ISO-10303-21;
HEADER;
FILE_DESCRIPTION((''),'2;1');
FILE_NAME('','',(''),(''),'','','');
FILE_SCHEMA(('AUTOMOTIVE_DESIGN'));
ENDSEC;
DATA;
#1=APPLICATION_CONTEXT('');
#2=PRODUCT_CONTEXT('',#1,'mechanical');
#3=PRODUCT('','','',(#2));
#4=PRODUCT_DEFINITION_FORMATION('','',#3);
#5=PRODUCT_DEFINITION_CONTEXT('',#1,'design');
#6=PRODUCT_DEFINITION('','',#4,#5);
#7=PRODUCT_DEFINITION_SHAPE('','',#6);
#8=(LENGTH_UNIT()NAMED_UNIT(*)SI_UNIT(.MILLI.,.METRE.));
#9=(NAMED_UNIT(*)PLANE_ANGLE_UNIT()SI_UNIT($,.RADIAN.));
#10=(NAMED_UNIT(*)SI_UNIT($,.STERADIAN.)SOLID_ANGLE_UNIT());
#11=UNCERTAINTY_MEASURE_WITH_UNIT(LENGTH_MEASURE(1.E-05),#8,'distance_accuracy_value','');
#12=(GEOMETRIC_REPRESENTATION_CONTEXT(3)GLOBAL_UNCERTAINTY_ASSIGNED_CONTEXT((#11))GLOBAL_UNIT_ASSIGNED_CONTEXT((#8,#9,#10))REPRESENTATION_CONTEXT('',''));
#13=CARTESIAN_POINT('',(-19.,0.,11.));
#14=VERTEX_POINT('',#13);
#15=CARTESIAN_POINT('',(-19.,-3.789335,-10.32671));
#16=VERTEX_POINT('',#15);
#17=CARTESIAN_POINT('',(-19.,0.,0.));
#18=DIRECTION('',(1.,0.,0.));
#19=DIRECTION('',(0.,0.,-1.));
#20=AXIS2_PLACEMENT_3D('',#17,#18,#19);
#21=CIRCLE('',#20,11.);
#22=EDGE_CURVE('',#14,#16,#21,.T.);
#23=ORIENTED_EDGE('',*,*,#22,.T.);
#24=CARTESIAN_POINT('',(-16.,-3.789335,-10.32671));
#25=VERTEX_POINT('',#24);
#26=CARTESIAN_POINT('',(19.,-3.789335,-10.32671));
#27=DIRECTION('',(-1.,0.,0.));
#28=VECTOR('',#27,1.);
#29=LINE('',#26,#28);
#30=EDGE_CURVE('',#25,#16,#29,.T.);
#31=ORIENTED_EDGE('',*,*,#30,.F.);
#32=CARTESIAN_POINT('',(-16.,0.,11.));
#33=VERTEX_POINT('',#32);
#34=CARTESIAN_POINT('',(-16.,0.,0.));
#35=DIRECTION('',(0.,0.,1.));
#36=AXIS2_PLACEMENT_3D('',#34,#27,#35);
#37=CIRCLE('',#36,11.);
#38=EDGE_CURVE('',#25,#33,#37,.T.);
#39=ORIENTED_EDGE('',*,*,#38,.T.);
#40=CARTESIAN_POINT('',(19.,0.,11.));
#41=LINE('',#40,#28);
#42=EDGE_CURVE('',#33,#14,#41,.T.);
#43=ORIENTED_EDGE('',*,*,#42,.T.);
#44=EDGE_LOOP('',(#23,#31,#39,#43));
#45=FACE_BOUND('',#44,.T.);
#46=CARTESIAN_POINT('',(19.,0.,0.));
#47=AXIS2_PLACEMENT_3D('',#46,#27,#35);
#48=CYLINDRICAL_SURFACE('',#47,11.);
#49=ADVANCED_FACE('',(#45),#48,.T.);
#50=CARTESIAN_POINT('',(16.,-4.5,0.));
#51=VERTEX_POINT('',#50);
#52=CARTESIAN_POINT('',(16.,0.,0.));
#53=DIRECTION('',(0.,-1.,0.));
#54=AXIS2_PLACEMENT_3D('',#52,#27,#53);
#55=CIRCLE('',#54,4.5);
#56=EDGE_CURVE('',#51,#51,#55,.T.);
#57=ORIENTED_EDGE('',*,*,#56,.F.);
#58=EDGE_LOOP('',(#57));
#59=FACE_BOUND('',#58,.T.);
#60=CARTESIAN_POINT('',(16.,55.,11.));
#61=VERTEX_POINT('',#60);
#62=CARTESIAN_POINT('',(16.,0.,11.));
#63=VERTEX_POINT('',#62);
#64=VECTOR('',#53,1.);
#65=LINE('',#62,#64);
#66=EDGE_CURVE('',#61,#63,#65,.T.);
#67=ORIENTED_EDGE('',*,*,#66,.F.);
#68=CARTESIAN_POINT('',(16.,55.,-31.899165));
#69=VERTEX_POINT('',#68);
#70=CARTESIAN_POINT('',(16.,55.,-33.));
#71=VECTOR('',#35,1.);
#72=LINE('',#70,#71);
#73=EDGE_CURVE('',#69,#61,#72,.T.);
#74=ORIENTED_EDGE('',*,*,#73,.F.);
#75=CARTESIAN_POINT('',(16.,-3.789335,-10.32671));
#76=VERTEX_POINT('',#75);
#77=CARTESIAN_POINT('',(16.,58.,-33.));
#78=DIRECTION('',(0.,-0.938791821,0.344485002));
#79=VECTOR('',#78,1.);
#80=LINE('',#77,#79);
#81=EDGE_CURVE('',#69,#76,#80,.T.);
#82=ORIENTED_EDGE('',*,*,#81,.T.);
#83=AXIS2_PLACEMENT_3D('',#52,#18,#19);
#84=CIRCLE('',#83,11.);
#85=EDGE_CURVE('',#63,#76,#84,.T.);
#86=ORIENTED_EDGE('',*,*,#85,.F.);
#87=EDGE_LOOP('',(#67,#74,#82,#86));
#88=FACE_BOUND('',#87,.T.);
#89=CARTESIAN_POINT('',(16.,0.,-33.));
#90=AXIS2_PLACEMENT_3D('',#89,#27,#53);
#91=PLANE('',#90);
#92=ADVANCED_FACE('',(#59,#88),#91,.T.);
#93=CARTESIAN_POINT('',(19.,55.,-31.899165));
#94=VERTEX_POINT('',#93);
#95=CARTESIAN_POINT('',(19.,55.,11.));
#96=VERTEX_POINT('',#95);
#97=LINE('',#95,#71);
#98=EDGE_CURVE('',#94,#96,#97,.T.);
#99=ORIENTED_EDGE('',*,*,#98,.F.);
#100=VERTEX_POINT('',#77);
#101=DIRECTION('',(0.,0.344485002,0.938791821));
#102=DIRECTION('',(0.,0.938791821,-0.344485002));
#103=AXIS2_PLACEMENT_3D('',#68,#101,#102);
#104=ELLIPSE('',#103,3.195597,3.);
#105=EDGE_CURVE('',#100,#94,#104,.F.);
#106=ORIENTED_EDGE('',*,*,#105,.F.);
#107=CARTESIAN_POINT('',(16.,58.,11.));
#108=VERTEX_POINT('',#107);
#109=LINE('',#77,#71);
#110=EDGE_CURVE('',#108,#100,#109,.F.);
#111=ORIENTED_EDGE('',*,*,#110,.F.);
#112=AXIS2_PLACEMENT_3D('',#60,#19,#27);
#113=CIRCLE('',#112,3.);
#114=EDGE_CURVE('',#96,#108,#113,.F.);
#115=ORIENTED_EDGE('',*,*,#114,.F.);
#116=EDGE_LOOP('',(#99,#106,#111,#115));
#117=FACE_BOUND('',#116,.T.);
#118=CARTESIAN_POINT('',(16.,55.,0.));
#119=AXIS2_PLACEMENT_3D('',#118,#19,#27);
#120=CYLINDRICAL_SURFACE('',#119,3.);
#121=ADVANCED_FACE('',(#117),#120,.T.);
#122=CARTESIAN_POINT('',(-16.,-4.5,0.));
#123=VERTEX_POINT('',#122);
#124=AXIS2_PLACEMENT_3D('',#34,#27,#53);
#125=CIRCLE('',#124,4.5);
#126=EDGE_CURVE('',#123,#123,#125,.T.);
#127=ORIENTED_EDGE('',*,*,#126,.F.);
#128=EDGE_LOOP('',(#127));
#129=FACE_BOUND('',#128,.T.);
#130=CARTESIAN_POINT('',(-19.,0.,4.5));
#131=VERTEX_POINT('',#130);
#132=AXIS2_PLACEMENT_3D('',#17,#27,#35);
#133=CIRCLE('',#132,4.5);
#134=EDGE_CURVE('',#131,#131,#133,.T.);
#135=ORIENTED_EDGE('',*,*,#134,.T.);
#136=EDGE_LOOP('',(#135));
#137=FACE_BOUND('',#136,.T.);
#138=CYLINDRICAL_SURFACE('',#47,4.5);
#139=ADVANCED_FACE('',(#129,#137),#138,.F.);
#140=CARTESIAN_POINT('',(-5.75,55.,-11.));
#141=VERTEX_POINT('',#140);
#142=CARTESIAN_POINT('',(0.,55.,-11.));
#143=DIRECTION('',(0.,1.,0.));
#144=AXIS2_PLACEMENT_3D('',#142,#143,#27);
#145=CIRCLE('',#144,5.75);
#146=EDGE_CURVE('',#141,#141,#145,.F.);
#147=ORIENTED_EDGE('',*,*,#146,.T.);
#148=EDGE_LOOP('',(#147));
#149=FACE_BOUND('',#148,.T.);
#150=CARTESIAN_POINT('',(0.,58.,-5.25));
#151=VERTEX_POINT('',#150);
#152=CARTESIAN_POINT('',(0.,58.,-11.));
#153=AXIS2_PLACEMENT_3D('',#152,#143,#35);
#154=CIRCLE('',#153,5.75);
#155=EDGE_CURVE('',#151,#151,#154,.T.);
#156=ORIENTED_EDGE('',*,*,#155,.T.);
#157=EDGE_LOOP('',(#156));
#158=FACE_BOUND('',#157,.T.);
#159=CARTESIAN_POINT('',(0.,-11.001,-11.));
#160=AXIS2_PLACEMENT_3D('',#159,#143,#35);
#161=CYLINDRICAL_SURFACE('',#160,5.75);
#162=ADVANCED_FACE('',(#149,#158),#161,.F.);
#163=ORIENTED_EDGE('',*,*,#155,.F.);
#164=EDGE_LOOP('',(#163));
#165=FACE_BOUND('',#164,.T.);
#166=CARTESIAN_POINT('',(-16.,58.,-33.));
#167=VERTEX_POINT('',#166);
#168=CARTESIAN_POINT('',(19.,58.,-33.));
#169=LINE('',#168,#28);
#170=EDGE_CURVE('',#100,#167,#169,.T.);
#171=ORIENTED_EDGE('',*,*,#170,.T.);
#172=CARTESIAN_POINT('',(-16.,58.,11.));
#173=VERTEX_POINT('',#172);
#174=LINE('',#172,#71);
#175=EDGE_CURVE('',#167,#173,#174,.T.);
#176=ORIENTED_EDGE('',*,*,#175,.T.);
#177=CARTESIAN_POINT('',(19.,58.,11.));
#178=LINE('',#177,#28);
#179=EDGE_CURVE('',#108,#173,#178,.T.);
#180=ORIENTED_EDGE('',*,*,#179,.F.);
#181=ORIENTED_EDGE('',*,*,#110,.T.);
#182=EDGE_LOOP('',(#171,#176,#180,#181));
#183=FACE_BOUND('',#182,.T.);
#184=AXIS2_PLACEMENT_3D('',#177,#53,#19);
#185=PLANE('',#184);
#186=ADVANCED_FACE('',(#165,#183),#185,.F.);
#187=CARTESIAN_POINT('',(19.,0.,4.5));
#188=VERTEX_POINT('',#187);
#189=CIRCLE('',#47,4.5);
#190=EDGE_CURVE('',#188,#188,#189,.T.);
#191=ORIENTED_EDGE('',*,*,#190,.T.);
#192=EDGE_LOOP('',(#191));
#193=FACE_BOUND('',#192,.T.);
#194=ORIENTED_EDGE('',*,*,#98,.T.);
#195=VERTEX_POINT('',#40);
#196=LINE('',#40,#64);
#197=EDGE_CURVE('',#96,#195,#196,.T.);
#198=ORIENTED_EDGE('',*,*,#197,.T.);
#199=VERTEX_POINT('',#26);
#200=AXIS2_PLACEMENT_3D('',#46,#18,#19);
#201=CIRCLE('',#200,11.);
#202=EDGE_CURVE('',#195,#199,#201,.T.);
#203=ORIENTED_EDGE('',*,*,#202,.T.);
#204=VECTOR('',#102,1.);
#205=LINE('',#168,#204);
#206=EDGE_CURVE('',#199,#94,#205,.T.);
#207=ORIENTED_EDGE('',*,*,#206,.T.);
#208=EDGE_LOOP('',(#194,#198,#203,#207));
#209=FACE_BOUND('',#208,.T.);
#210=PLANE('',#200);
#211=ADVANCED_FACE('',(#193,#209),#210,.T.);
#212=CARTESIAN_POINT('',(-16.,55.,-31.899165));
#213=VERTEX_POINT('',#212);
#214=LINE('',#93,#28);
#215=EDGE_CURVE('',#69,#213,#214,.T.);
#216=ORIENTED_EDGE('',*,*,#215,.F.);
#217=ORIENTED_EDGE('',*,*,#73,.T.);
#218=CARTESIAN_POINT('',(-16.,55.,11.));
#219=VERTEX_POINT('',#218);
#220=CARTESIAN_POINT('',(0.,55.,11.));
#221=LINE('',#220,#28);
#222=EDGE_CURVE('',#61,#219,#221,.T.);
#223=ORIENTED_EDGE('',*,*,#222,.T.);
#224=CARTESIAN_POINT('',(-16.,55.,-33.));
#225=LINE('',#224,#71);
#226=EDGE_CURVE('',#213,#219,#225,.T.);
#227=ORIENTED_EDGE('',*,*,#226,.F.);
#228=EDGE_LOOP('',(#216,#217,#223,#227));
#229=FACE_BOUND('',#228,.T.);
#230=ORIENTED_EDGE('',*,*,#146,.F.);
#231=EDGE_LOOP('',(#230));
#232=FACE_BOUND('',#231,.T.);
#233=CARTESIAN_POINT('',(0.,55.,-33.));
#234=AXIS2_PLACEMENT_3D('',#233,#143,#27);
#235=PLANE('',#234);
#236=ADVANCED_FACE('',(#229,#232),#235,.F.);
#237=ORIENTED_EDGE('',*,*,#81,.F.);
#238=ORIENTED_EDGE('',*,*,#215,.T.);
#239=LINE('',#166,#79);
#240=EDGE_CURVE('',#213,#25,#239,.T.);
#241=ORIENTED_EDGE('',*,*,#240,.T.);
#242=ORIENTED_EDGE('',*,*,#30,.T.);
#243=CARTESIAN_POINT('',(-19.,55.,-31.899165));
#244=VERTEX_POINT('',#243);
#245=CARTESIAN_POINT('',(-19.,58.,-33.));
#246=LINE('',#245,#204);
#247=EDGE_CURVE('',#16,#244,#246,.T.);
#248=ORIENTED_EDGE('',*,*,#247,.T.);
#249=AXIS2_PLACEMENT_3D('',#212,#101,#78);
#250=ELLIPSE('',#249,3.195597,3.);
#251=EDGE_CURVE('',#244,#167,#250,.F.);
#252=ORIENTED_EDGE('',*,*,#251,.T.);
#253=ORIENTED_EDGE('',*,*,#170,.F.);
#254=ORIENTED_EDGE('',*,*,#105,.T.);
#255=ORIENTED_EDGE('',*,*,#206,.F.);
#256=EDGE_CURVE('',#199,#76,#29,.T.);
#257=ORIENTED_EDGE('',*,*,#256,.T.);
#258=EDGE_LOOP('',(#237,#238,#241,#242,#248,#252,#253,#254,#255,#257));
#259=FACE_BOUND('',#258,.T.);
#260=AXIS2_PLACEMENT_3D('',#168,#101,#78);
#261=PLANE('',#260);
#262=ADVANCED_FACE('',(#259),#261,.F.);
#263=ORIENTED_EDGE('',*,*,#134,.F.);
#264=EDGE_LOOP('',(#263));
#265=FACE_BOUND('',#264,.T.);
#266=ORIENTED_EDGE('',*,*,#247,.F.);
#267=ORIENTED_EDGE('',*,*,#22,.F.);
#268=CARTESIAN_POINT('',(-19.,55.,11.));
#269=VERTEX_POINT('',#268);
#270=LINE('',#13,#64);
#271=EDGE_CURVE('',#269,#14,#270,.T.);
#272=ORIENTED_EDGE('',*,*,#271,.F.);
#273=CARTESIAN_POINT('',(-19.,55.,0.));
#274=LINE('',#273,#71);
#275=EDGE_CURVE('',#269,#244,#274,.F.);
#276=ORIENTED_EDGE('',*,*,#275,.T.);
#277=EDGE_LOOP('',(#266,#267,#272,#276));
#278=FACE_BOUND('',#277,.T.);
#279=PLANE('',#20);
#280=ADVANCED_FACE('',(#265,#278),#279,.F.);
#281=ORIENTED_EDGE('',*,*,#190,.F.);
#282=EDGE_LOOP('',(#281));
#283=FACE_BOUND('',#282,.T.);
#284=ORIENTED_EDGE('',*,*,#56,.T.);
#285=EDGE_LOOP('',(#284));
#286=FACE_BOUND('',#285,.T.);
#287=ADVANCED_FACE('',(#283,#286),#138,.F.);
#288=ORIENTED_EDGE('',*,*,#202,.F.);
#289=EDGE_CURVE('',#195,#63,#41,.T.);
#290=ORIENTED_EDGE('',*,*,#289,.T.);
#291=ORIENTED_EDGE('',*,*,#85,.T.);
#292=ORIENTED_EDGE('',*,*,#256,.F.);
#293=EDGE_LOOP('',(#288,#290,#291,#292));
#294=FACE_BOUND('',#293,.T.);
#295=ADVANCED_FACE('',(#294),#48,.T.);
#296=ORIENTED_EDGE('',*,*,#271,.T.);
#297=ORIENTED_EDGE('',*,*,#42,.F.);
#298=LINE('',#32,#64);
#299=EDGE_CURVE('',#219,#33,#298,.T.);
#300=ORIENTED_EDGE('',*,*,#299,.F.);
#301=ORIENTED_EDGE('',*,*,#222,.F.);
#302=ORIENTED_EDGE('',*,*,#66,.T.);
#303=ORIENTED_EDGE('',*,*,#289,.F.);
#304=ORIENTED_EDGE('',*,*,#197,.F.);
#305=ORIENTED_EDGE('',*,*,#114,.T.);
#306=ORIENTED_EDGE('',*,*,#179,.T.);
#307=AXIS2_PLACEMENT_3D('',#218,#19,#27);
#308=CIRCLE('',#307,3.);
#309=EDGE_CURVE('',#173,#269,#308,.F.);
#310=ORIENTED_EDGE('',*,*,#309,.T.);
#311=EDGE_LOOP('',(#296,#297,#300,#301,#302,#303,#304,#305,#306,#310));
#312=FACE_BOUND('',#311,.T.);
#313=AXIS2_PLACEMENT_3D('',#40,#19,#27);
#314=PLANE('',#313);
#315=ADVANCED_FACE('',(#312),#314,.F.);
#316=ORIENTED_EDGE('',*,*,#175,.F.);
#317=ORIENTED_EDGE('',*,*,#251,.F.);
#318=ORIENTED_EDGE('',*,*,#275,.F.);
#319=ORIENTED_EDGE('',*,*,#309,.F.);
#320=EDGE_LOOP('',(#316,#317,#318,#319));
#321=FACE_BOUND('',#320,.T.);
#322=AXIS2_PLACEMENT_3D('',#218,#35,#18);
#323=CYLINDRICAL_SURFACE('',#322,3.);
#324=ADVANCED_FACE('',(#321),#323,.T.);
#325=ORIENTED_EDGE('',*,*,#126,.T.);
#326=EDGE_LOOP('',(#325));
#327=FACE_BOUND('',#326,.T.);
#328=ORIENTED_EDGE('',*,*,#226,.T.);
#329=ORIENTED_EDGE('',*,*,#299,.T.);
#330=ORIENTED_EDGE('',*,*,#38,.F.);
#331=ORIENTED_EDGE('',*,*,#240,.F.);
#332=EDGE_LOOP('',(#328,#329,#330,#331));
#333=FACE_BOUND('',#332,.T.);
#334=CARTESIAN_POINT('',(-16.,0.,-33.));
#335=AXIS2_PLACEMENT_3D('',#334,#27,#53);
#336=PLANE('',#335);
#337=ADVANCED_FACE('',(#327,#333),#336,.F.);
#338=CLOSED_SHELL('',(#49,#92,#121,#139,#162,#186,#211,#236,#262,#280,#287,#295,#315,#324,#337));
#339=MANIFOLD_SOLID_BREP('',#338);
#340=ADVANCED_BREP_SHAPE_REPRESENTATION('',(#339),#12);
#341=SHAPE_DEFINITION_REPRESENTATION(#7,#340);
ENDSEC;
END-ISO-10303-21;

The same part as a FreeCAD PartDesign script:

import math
import FreeCAD as App
import Part
import Sketcher
from FreeCAD import Vector
Q = App.Units.Quantity


def edges_at(feature, points):
    """Names of the edges that pass closest to the given points."""
    edges = feature.Shape.Edges
    near = lambda p: min(range(len(edges)), key=lambda i: edges[i].distToShape(Part.Vertex(*p))[0])
    return sorted({f"Edge{near(p) + 1}" for p in points})


def add_polygon(sketch, points):
    """Adds a closed chain of lines whose ends are joined by coincident constraints."""
    first, n = sketch.GeometryCount, len(points)
    for a, b in zip(points, points[1:] + points[:1]):
        sketch.addGeometry(Part.LineSegment(App.Vector(*a, 0), App.Vector(*b, 0)), False)
    for i in range(n):
        sketch.addConstraint(Sketcher.Constraint("Coincident", first + i, 2, first + (i + 1) % n, 1))

doc = App.newDocument("Part")
params = doc.addObject("Spreadsheet::Sheet", "Params")
for row, (alias, value) in enumerate([
    ("sketch1_radius", "11 mm"),
    ("sketch1_width", "58 mm"),
    ("sketch1_height", "44 mm"),
    ("pad1_length", "38 mm"),
    ("sketch2_width", "32 mm"),
    ("sketch2_height", "55 mm"),
    ("sketch3_width", "32 mm"),
    ("sketch4_diameter", "9 mm"),
    ("sketch5_diameter", "11.5 mm"),
    ("fillet_radius", "3 mm"),
], start=1):
    params.set(f"A{row}", alias)
    params.set(f"B{row}", "=" + value)
    params.setAlias(f"B{row}", alias)

body = doc.addObject("PartDesign::Body", "Body")

sketch1 = body.newObject("Sketcher::SketchObject", "Sketch")
sketch1.AttachmentSupport = (doc.getObject("YZ_Plane"), [""])
sketch1.MapMode = "FlatFace"
sketch1.addGeometry(Part.LineSegment(Vector(58, 11, 0), Vector(0, 11, 0)), False)
sketch1.addGeometry(Part.ArcOfCircle(Part.Circle(Vector(0, 0, 0), Vector(0, 0, 1), 11), math.radians(90), math.radians(249.849638)), False)
sketch1.addGeometry(Part.LineSegment(Vector(-3.789335, -10.32671, 0), Vector(58, -33, 0)), False)
sketch1.addGeometry(Part.LineSegment(Vector(58, -33, 0), Vector(58, 11, 0)), False)
sketch1.addConstraint(Sketcher.Constraint("Tangent", 0, 2, 1, 1))
sketch1.addConstraint(Sketcher.Constraint("Tangent", 1, 2, 2, 1))
sketch1.addConstraint(Sketcher.Constraint("Coincident", 2, 2, 3, 1))
sketch1.addConstraint(Sketcher.Constraint("Coincident", 3, 2, 0, 1))
sketch1.addConstraint(Sketcher.Constraint("Horizontal", 0))
sketch1.addConstraint(Sketcher.Constraint("Vertical", 3))
sketch1.addConstraint(Sketcher.Constraint("Coincident", 1, 3, -1, 1))
sketch1.addConstraint(Sketcher.Constraint("Radius", 1, Q("11 mm")))
sketch1.addConstraint(Sketcher.Constraint("DistanceX", 0, 2, 0, 1, Q("58 mm")))
sketch1.addConstraint(Sketcher.Constraint("DistanceY", 3, 1, 3, 2, Q("44 mm")))
sketch1.setExpression("Constraints[7]", "Params.sketch1_radius")
sketch1.setExpression("Constraints[8]", "Params.sketch1_width")
sketch1.setExpression("Constraints[9]", "Params.sketch1_height")
pad1 = body.newObject("PartDesign::Pad", "Pad")
pad1.Profile = sketch1
pad1.setExpression("Length", "Params.pad1_length")
pad1.Midplane = True

sketch2 = body.newObject("Sketcher::SketchObject", "Sketch001")
sketch2.AttachmentSupport = (doc.getObject("XY_Plane"), [""])
sketch2.MapMode = "FlatFace"
sketch2.AttachmentOffset = App.Placement(Vector(0, 0, 11), App.Rotation())
add_polygon(sketch2, [(-16, 55), (-16, 0), (16, 0), (16, 55)])
sketch2.addConstraint(Sketcher.Constraint("Vertical", 0))
sketch2.addConstraint(Sketcher.Constraint("Horizontal", 1))
sketch2.addConstraint(Sketcher.Constraint("Vertical", 2))
sketch2.addConstraint(Sketcher.Constraint("Horizontal", 3))
sketch2.addConstraint(Sketcher.Constraint("Symmetric", 0, 2, 1, 2, -1, 1))
sketch2.addConstraint(Sketcher.Constraint("DistanceX", 1, 1, 1, 2, Q("32 mm")))
sketch2.addConstraint(Sketcher.Constraint("DistanceY", 0, 2, 0, 1, Q("55 mm")))
sketch2.setExpression("Constraints[9]", "Params.sketch2_width")
sketch2.setExpression("Constraints[10]", "Params.sketch2_height")
pocket1 = body.newObject("PartDesign::Pocket", "Pocket")
pocket1.Profile = sketch2
pocket1.Type = "ThroughAll"

sketch3 = body.newObject("Sketcher::SketchObject", "Sketch002")
sketch3.AttachmentSupport = (doc.getObject("XZ_Plane"), [""])
sketch3.MapMode = "FlatFace"
add_polygon(sketch3, [(-16, -11.717188), (-16, 11), (16, 11), (16, -11.717188)])
sketch3.addConstraint(Sketcher.Constraint("Vertical", 0))
sketch3.addConstraint(Sketcher.Constraint("Horizontal", 1))
sketch3.addConstraint(Sketcher.Constraint("Vertical", 2))
sketch3.addConstraint(Sketcher.Constraint("Horizontal", 3))
sketch3.addConstraint(Sketcher.Constraint("DistanceX", 1, 1, 1, 2, Q("32 mm")))
sketch3.addConstraint(Sketcher.Constraint("DistanceX", 0, 2, -1, 1, Q("16 mm")))
sketch3.addConstraint(Sketcher.Constraint("DistanceY", -1, 1, 0, 2, Q("11 mm")))
sketch3.addConstraint(Sketcher.Constraint("DistanceY", 0, 1, 0, 2, Q("22.717188 mm")))
sketch3.setExpression("Constraints[8]", "Params.sketch3_width")
pocket2 = body.newObject("PartDesign::Pocket", "Pocket001")
pocket2.Profile = sketch3
pocket2.Type = "ThroughAll"
pocket2.Reversed = True

sketch4 = body.newObject("Sketcher::SketchObject", "Sketch003")
sketch4.AttachmentSupport = (doc.getObject("YZ_Plane"), [""])
sketch4.MapMode = "FlatFace"
sketch4.AttachmentOffset = App.Placement(Vector(0, 0, -19), App.Rotation())
sketch4.addGeometry(Part.Circle(Vector(0, 0, 0), Vector(0, 0, 1), 4.5), False)
sketch4.addConstraint(Sketcher.Constraint("Coincident", 0, 3, -1, 1))
sketch4.addConstraint(Sketcher.Constraint("Diameter", 0, Q("9 mm")))
sketch4.setExpression("Constraints[1]", "Params.sketch4_diameter")
pocket3 = body.newObject("PartDesign::Pocket", "Pocket002")
pocket3.Profile = sketch4
pocket3.Type = "ThroughAll"
pocket3.Reversed = True

sketch5 = body.newObject("Sketcher::SketchObject", "Sketch004")
sketch5.AttachmentSupport = (doc.getObject("XZ_Plane"), [""])
sketch5.MapMode = "FlatFace"
sketch5.AttachmentOffset = App.Placement(Vector(0, 0, -58), App.Rotation())
sketch5.addGeometry(Part.Circle(Vector(0, -11, 0), Vector(0, 0, 1), 5.75), False)
sketch5.addConstraint(Sketcher.Constraint("PointOnObject", 0, 3, -2))
sketch5.addConstraint(Sketcher.Constraint("Diameter", 0, Q("11.5 mm")))
sketch5.addConstraint(Sketcher.Constraint("DistanceY", 0, 3, -1, 1, Q("11 mm")))
sketch5.setExpression("Constraints[1]", "Params.sketch5_diameter")
pocket4 = body.newObject("PartDesign::Pocket", "Pocket003")
pocket4.Profile = sketch5
pocket4.Type = "UpToFirst"
pocket4.Reversed = True
doc.recompute()

fillet = body.newObject("PartDesign::Fillet", "Fillet")
fillet.Base = (pocket4, edges_at(pocket4, [(19, 58, -11), (-19, 58, -11)]))
fillet.setExpression("Radius", "Params.fillet_radius")

doc.recompute()
